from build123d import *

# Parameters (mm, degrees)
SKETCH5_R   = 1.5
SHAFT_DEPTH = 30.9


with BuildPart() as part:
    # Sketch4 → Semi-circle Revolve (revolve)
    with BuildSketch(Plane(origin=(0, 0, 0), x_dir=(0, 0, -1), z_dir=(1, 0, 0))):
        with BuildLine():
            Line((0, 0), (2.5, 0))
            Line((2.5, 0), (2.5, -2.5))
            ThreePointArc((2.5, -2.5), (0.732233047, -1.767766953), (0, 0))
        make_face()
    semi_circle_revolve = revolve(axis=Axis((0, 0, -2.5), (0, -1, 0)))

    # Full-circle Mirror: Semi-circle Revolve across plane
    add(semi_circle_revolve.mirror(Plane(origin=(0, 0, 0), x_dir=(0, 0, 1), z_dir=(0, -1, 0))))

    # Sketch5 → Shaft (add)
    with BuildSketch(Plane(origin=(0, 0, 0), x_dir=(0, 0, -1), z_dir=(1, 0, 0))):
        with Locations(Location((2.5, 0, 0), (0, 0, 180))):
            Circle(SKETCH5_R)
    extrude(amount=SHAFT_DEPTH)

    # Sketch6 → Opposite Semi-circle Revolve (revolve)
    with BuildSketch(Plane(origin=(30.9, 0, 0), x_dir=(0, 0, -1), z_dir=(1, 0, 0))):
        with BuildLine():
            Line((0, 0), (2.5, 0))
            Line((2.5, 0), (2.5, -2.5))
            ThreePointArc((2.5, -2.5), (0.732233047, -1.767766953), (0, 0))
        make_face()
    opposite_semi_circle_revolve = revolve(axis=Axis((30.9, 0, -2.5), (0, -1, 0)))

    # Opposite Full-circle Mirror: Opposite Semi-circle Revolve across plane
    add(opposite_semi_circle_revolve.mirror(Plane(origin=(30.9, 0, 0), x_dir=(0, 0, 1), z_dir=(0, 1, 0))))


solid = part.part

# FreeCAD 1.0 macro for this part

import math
import FreeCAD as App
import Part
import Sketcher
from FreeCAD import Vector
Q = App.Units.Quantity

doc = App.newDocument("Part")
params = doc.addObject("Spreadsheet::Sheet", "Params")
for row, (alias, value) in enumerate([
    ("sketch1_radius", "2.5 mm"),
    ("revolution_angle", "360 deg"),
    ("sketch2_diameter", "3 mm"),
    ("pad1_length", "30.9 mm"),
    ("sketch3_radius", "2.5 mm"),
    ("revolution2_angle", "360 deg"),
], start=1):
    params.set(f"A{row}", alias)
    params.set(f"B{row}", "=" + value)
    params.setAlias(f"B{row}", alias)

body = doc.addObject("PartDesign::Body", "Body")

# Sketch on YZ plane
sketch1 = body.newObject("Sketcher::SketchObject", "Sketch")
sketch1.AttachmentSupport = (doc.getObject("YZ_Plane"), [""])
sketch1.MapMode = "FlatFace"
sketch1.addGeometry([
    Part.LineSegment(Vector(0, -2.5, 0), Vector(0, 0, 0)),
    Part.ArcOfCircle(Part.Circle(Vector(0, -2.5, 0), Vector(0, 0, 1), 2.5), math.radians(90), math.radians(180)),
    Part.LineSegment(Vector(-2.5, -2.5, 0), Vector(0, -2.5, 0)),
], False)
sketch1.addGeometry(Part.LineSegment(Vector(0, -2.5, 0), Vector(-2.5, -2.5, 0)), True)  # axis
sketch1.addConstraint([
    Sketcher.Constraint("Coincident", 0, 2, 1, 1),
    Sketcher.Constraint("Coincident", 1, 2, 2, 1),
    Sketcher.Constraint("Coincident", 2, 2, 0, 1),
    Sketcher.Constraint("Vertical", 0),
    Sketcher.Constraint("Horizontal", 2),
    Sketcher.Constraint("Horizontal", 3),
    Sketcher.Constraint("Coincident", 0, 2, -1, 1),
    Sketcher.Constraint("Coincident", 2, 2, 1, 3),
    Sketcher.Constraint("Coincident", 3, 1, 1, 3),
    Sketcher.Constraint("Equal", 2, 3),
    Sketcher.Constraint("Radius", 1, Q("2.5 mm")),
])
sketch1.setExpression("Constraints[10]", "Params.sketch1_radius")
revolution = body.newObject("PartDesign::Revolution", "Revolution")
revolution.Profile = sketch1
revolution.ReferenceAxis = (sketch1, ["Axis0"])
revolution.setExpression("Angle", "Params.revolution_angle")
doc.recompute()

mirrored = body.newObject("PartDesign::Mirrored", "Mirrored")
mirrored.Originals = [revolution]
mirrored.MirrorPlane = (doc.getObject("XZ_Plane"), [""])
body.Tip = mirrored

# Sketch on YZ plane
sketch2 = body.newObject("Sketcher::SketchObject", "Sketch001")
sketch2.AttachmentSupport = (doc.getObject("YZ_Plane"), [""])
sketch2.MapMode = "FlatFace"
sketch2.addGeometry(Part.Circle(Vector(0, -2.5, 0), Vector(0, 0, 1), 1.5), False)
sketch2.addConstraint([
    Sketcher.Constraint("PointOnObject", 0, 3, -2),
    Sketcher.Constraint("Diameter", 0, Q("3 mm")),
    Sketcher.Constraint("DistanceY", 0, 3, -1, 1, Q("2.5 mm")),
])
sketch2.setExpression("Constraints[1]", "Params.sketch2_diameter")
pad1 = body.newObject("PartDesign::Pad", "Pad")
pad1.Profile = sketch2
pad1.setExpression("Length", "Params.pad1_length")

# Sketch on YZ plane
sketch3 = body.newObject("Sketcher::SketchObject", "Sketch002")
sketch3.AttachmentSupport = (doc.getObject("YZ_Plane"), [""])
sketch3.MapMode = "FlatFace"
sketch3.AttachmentOffset = App.Placement(Vector(0, 0, 30.9), App.Rotation())
sketch3.addGeometry([
    Part.LineSegment(Vector(0, -2.5, 0), Vector(0, 0, 0)),
    Part.ArcOfCircle(Part.Circle(Vector(0, -2.5, 0), Vector(0, 0, 1), 2.5), math.radians(90), math.radians(180)),
    Part.LineSegment(Vector(-2.5, -2.5, 0), Vector(0, -2.5, 0)),
], False)
sketch3.addGeometry(Part.LineSegment(Vector(0, -2.5, 0), Vector(-2.5, -2.5, 0)), True)  # axis
sketch3.addConstraint([
    Sketcher.Constraint("Coincident", 0, 2, 1, 1),
    Sketcher.Constraint("Coincident", 1, 2, 2, 1),
    Sketcher.Constraint("Coincident", 2, 2, 0, 1),
    Sketcher.Constraint("Vertical", 0),
    Sketcher.Constraint("Horizontal", 2),
    Sketcher.Constraint("Horizontal", 3),
    Sketcher.Constraint("Coincident", 0, 2, -1, 1),
    Sketcher.Constraint("Coincident", 2, 2, 1, 3),
    Sketcher.Constraint("Coincident", 3, 1, 1, 3),
    Sketcher.Constraint("Equal", 2, 3),
    Sketcher.Constraint("Radius", 1, Q("2.5 mm")),
])
sketch3.setExpression("Constraints[10]", "Params.sketch3_radius")
revolution2 = body.newObject("PartDesign::Revolution", "Revolution001")
revolution2.Profile = sketch3
revolution2.ReferenceAxis = (sketch3, ["Axis0"])
revolution2.setExpression("Angle", "Params.revolution2_angle")
doc.recompute()

mirrored2 = body.newObject("PartDesign::Mirrored", "Mirrored001")
mirrored2.Originals = [revolution2]
mirrored2.MirrorPlane = (doc.getObject("XZ_Plane"), [""])
body.Tip = mirrored2

doc.recompute()
